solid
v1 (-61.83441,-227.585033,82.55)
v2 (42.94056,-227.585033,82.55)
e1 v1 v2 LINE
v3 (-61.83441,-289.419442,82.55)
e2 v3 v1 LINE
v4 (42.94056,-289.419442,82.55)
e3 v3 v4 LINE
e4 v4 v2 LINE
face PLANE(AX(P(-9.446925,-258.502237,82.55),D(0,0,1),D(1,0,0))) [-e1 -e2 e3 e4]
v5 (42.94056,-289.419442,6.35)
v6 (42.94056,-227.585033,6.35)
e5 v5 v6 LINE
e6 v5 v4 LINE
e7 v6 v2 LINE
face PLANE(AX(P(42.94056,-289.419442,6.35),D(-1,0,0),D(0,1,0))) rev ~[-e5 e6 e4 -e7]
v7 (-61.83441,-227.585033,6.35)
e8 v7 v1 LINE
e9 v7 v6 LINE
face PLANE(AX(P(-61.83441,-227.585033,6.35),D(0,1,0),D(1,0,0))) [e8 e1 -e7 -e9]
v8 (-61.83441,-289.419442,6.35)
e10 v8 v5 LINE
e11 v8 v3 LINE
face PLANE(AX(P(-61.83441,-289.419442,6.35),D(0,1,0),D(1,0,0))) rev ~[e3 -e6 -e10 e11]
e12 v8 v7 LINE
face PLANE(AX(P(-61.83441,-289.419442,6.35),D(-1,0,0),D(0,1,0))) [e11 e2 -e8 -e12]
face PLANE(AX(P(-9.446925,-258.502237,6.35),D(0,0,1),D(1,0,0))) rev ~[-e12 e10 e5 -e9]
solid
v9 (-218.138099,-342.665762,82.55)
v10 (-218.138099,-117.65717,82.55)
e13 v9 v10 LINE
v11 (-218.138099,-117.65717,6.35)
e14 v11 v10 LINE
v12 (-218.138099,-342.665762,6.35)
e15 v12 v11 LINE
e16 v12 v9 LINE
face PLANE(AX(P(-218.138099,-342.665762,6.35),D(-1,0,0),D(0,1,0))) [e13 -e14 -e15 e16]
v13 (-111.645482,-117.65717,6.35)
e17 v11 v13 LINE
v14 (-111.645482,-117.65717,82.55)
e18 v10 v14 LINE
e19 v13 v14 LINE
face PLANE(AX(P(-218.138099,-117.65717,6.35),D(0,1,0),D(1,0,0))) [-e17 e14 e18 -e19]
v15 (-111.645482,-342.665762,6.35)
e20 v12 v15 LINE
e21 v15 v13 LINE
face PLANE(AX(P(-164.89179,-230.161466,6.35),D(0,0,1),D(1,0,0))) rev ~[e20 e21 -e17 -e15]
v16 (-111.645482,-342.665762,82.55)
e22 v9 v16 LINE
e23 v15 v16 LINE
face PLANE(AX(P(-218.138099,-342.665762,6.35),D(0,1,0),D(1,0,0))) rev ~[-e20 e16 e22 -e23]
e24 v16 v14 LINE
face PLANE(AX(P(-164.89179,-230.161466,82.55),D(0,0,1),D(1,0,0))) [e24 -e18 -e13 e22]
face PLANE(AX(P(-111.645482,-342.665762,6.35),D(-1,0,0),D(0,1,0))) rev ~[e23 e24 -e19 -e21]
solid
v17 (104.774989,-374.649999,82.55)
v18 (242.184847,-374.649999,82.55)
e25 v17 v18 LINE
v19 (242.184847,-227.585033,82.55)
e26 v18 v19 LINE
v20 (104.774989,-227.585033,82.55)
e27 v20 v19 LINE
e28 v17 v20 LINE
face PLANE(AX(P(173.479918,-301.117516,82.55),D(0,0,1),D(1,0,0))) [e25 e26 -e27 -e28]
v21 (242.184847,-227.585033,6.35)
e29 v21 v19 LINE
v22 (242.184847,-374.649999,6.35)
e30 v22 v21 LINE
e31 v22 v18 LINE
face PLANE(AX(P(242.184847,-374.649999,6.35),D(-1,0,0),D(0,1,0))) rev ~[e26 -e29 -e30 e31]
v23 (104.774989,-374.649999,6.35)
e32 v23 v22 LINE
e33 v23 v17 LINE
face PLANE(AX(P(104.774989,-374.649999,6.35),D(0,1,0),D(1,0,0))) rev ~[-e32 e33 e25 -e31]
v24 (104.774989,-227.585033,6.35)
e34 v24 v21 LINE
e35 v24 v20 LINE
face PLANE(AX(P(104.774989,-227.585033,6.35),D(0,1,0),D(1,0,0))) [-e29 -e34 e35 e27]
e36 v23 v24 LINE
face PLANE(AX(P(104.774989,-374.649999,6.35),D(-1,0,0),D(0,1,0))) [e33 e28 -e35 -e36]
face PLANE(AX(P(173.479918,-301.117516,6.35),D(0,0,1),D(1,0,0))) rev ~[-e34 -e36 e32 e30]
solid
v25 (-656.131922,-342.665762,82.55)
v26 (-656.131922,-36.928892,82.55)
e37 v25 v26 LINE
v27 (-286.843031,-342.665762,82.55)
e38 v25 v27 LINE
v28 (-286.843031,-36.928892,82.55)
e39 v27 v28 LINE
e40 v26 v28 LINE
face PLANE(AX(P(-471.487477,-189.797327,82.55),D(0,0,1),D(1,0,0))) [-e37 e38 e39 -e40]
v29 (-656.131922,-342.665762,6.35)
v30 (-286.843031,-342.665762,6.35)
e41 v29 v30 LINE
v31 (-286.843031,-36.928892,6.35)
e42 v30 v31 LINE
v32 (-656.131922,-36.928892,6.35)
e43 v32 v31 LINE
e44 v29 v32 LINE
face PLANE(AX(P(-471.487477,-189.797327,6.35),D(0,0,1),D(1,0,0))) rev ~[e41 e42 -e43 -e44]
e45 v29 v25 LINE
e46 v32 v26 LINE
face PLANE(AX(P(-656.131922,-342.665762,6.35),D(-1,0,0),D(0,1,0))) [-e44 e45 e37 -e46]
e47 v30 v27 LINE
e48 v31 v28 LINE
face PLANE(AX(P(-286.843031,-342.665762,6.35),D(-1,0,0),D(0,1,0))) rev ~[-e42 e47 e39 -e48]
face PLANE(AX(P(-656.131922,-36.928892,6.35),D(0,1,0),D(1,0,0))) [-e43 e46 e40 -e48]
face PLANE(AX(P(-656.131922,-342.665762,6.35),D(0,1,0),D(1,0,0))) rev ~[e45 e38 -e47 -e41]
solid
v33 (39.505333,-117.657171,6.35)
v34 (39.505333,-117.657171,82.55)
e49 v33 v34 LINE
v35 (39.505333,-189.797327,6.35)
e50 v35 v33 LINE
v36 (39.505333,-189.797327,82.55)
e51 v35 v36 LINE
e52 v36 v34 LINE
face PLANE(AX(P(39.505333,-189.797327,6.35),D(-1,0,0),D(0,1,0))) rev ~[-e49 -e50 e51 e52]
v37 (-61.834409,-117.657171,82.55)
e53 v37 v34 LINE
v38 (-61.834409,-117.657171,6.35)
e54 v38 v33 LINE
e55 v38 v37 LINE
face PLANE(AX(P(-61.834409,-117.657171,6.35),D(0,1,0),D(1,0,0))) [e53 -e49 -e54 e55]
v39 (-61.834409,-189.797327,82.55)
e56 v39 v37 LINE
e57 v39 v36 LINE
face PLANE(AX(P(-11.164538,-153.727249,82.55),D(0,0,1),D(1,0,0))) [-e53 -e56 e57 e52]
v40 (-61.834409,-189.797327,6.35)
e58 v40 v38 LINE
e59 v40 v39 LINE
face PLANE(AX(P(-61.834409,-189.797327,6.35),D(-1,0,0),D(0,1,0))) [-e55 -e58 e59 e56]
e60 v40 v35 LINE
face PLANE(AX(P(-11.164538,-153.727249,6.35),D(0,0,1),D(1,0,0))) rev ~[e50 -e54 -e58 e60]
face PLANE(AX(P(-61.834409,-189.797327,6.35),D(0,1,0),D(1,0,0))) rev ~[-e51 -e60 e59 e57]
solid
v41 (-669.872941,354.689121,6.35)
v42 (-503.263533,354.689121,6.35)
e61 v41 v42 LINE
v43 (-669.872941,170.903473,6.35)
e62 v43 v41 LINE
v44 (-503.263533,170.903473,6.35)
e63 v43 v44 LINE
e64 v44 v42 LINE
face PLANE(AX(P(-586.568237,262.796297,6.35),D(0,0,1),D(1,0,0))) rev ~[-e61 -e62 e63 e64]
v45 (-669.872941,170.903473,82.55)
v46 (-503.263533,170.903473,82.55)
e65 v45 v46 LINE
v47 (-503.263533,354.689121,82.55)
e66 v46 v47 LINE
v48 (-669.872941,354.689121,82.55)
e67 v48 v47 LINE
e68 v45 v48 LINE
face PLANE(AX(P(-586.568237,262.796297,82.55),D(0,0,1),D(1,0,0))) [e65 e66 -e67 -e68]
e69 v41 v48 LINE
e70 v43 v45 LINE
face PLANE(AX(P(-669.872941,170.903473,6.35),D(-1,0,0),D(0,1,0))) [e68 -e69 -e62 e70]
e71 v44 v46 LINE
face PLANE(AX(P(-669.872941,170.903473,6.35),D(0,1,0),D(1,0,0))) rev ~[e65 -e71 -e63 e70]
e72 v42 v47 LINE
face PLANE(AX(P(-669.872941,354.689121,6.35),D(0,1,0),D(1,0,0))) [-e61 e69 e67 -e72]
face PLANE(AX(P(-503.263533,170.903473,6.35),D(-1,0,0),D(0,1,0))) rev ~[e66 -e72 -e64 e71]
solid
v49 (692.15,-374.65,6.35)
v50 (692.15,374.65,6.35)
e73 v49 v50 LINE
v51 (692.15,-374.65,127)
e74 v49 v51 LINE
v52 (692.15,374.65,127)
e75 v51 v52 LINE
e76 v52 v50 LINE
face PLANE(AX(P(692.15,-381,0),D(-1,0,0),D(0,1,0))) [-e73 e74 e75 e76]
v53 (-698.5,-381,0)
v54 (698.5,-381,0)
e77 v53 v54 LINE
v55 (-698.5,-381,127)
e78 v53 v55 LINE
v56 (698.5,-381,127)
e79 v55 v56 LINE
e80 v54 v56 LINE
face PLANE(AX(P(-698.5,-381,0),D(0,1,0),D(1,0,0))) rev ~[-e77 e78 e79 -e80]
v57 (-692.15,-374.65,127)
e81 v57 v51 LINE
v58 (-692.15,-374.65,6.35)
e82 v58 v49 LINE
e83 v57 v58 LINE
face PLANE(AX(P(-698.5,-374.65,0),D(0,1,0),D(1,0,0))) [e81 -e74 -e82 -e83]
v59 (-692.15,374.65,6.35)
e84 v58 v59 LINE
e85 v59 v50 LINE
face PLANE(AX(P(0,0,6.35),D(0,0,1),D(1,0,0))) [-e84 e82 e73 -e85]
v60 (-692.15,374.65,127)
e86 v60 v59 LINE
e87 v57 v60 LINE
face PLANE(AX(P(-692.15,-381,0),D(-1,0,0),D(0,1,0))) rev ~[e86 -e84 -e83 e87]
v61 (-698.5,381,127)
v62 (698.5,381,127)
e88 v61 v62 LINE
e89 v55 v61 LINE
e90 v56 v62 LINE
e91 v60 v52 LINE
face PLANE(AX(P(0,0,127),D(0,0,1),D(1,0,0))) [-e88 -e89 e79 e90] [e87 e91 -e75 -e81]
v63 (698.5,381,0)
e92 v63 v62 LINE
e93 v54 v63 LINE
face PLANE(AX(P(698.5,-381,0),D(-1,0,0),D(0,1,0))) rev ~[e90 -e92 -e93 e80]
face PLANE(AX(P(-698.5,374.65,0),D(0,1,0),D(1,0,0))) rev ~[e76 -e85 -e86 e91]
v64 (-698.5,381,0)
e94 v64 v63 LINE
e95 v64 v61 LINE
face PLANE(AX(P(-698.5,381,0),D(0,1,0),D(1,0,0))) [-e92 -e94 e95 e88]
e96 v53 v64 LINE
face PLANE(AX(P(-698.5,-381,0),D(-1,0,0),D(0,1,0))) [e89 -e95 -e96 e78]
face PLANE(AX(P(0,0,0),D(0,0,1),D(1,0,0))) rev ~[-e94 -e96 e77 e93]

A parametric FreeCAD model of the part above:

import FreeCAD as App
import Part
import Sketcher
Q = App.Units.Quantity


def faces_at(feature, points):
    """Names of the faces that lie closest to the given points."""
    faces = feature.Shape.Faces
    near = lambda p: min(range(len(faces)), key=lambda i: faces[i].distToShape(Part.Vertex(*p))[0])
    return sorted({f"Face{near(p) + 1}" for p in points})

doc = App.newDocument("Part")
body = doc.addObject("PartDesign::Body", "Body")

# Sketch on XY plane
sketch1 = body.newObject("Sketcher::SketchObject", "Sketch")
sketch1.AttachmentSupport = (doc.getObject("XY_Plane"), [""])
sketch1.MapMode = "FlatFace"
sketch1.addGeometry(Part.LineSegment(App.Vector(-698.5, 381, 0), App.Vector(-698.5, -381, 0)), False)
sketch1.addGeometry(Part.LineSegment(App.Vector(-698.5, -381, 0), App.Vector(698.5, -381, 0)), False)
sketch1.addGeometry(Part.LineSegment(App.Vector(698.5, -381, 0), App.Vector(698.5, 381, 0)), False)
sketch1.addGeometry(Part.LineSegment(App.Vector(698.5, 381, 0), App.Vector(-698.5, 381, 0)), False)
sketch1.addConstraint(Sketcher.Constraint("Coincident", 0, 2, 1, 1))
sketch1.addConstraint(Sketcher.Constraint("Coincident", 1, 2, 2, 1))
sketch1.addConstraint(Sketcher.Constraint("Coincident", 2, 2, 3, 1))
sketch1.addConstraint(Sketcher.Constraint("Coincident", 3, 2, 0, 1))
sketch1.addConstraint(Sketcher.Constraint("Vertical", 0))
sketch1.addConstraint(Sketcher.Constraint("Horizontal", 1))
sketch1.addConstraint(Sketcher.Constraint("Vertical", 2))
sketch1.addConstraint(Sketcher.Constraint("Horizontal", 3))
sketch1.addConstraint(Sketcher.Constraint("Symmetric", 0, 2, 2, 2, -1, 1))
sketch1.addConstraint(Sketcher.Constraint("DistanceX", 1, 1, 1, 2, Q("55 in")))
sketch1.addConstraint(Sketcher.Constraint("DistanceY", 0, 2, 0, 1, Q("30 in")))
pad1 = body.newObject("PartDesign::Pad", "Pad")
pad1.Profile = sketch1
pad1.Length = Q("5 in")
doc.recompute()

thickness = body.newObject("PartDesign::Thickness", "Thickness")
thickness.Base = (pad1, faces_at(pad1, [(0, 0, 127)]))
thickness.Value = Q("0.25 in")
thickness.Reversed = True
thickness.Join = "Arc"
body2 = doc.addObject("PartDesign::Body", "Body001")
body2.AllowCompound = True

# Sketch on XY plane
sketch2 = body2.newObject("Sketcher::SketchObject", "Sketch001")
sketch2.AttachmentSupport = (doc.getObject("XY_Plane001"), [""])
sketch2.MapMode = "FlatFace"
sketch2.AttachmentOffset = App.Placement(App.Vector(0, 0, 0.25 * 25.4), App.Rotation())
sketch2.addGeometry(Part.LineSegment(App.Vector(-656.131922, -36.928892, 0), App.Vector(-656.131922, -342.665762, 0)), False)
sketch2.addGeometry(Part.LineSegment(App.Vector(-656.131922, -342.665762, 0), App.Vector(-286.843031, -342.665762, 0)), False)
sketch2.addGeometry(Part.LineSegment(App.Vector(-286.843031, -342.665762, 0), App.Vector(-286.843031, -36.928892, 0)), False)
sketch2.addGeometry(Part.LineSegment(App.Vector(-286.843031, -36.928892, 0), App.Vector(-656.131922, -36.928892, 0)), False)
sketch2.addGeometry(Part.LineSegment(App.Vector(-218.138099, -117.65717, 0), App.Vector(-218.138099, -342.665762, 0)), False)
sketch2.addGeometry(Part.LineSegment(App.Vector(-218.138099, -342.665762, 0), App.Vector(-111.645482, -342.665762, 0)), False)
sketch2.addGeometry(Part.LineSegment(App.Vector(-111.645482, -342.665762, 0), App.Vector(-111.645482, -117.65717, 0)), False)
sketch2.addGeometry(Part.LineSegment(App.Vector(-111.645482, -117.65717, 0), App.Vector(-218.138099, -117.65717, 0)), False)
sketch2.addGeometry(Part.LineSegment(App.Vector(-61.834409, -117.657171, 0), App.Vector(-61.834409, -189.797327, 0)), False)
sketch2.addGeometry(Part.LineSegment(App.Vector(-61.834409, -189.797327, 0), App.Vector(39.505333, -189.797327, 0)), False)
sketch2.addGeometry(Part.LineSegment(App.Vector(39.505333, -189.797327, 0), App.Vector(39.505333, -117.657171, 0)), False)
sketch2.addGeometry(Part.LineSegment(App.Vector(39.505333, -117.657171, 0), App.Vector(-61.834409, -117.657171, 0)), False)
sketch2.addGeometry(Part.LineSegment(App.Vector(-61.83441, -227.585033, 0), App.Vector(-61.83441, -289.419442, 0)), False)
sketch2.addGeometry(Part.LineSegment(App.Vector(-61.83441, -289.419442, 0), App.Vector(42.94056, -289.419442, 0)), False)
sketch2.addGeometry(Part.LineSegment(App.Vector(42.94056, -289.419442, 0), App.Vector(42.94056, -227.585033, 0)), False)
sketch2.addGeometry(Part.LineSegment(App.Vector(42.94056, -227.585033, 0), App.Vector(-61.83441, -227.585033, 0)), False)
sketch2.addGeometry(Part.LineSegment(App.Vector(-669.872941, 354.689121, 0), App.Vector(-669.872941, 170.903473, 0)), False)
sketch2.addGeometry(Part.LineSegment(App.Vector(-669.872941, 170.903473, 0), App.Vector(-503.263533, 170.903473, 0)), False)
sketch2.addGeometry(Part.LineSegment(App.Vector(-503.263533, 170.903473, 0), App.Vector(-503.263533, 354.689121, 0)), False)
sketch2.addGeometry(Part.LineSegment(App.Vector(-503.263533, 354.689121, 0), App.Vector(-669.872941, 354.689121, 0)), False)
sketch2.addGeometry(Part.LineSegment(App.Vector(104.774989, -227.585033, 0), App.Vector(104.774989, -374.649999, 0)), False)
sketch2.addGeometry(Part.LineSegment(App.Vector(104.774989, -374.649999, 0), App.Vector(242.184847, -374.649999, 0)), False)
sketch2.addGeometry(Part.LineSegment(App.Vector(242.184847, -374.649999, 0), App.Vector(242.184847, -227.585033, 0)), False)
sketch2.addGeometry(Part.LineSegment(App.Vector(242.184847, -227.585033, 0), App.Vector(104.774989, -227.585033, 0)), False)
sketch2.addConstraint(Sketcher.Constraint("Coincident", 0, 2, 1, 1))
sketch2.addConstraint(Sketcher.Constraint("Coincident", 1, 2, 2, 1))
sketch2.addConstraint(Sketcher.Constraint("Coincident", 2, 2, 3, 1))
sketch2.addConstraint(Sketcher.Constraint("Coincident", 3, 2, 0, 1))
sketch2.addConstraint(Sketcher.Constraint("Coincident", 4, 2, 5, 1))
sketch2.addConstraint(Sketcher.Constraint("Coincident", 5, 2, 6, 1))
sketch2.addConstraint(Sketcher.Constraint("Coincident", 6, 2, 7, 1))
sketch2.addConstraint(Sketcher.Constraint("Coincident", 7, 2, 4, 1))
sketch2.addConstraint(Sketcher.Constraint("Coincident", 8, 2, 9, 1))
sketch2.addConstraint(Sketcher.Constraint("Coincident", 9, 2, 10, 1))
sketch2.addConstraint(Sketcher.Constraint("Coincident", 10, 2, 11, 1))
sketch2.addConstraint(Sketcher.Constraint("Coincident", 11, 2, 8, 1))
sketch2.addConstraint(Sketcher.Constraint("Coincident", 12, 2, 13, 1))
sketch2.addConstraint(Sketcher.Constraint("Coincident", 13, 2, 14, 1))
sketch2.addConstraint(Sketcher.Constraint("Coincident", 14, 2, 15, 1))
sketch2.addConstraint(Sketcher.Constraint("Coincident", 15, 2, 12, 1))
sketch2.addConstraint(Sketcher.Constraint("Coincident", 16, 2, 17, 1))
sketch2.addConstraint(Sketcher.Constraint("Coincident", 17, 2, 18, 1))
sketch2.addConstraint(Sketcher.Constraint("Coincident", 18, 2, 19, 1))
sketch2.addConstraint(Sketcher.Constraint("Coincident", 19, 2, 16, 1))
sketch2.addConstraint(Sketcher.Constraint("Coincident", 20, 2, 21, 1))
sketch2.addConstraint(Sketcher.Constraint("Coincident", 21, 2, 22, 1))
sketch2.addConstraint(Sketcher.Constraint("Coincident", 22, 2, 23, 1))
sketch2.addConstraint(Sketcher.Constraint("Coincident", 23, 2, 20, 1))
sketch2.addConstraint(Sketcher.Constraint("Vertical", 0))
sketch2.addConstraint(Sketcher.Constraint("Horizontal", 1))
sketch2.addConstraint(Sketcher.Constraint("Vertical", 2))
sketch2.addConstraint(Sketcher.Constraint("Horizontal", 3))
sketch2.addConstraint(Sketcher.Constraint("Vertical", 4))
sketch2.addConstraint(Sketcher.Constraint("Horizontal", 5))
sketch2.addConstraint(Sketcher.Constraint("Vertical", 6))
sketch2.addConstraint(Sketcher.Constraint("Horizontal", 7))
sketch2.addConstraint(Sketcher.Constraint("Vertical", 8))
sketch2.addConstraint(Sketcher.Constraint("Horizontal", 9))
sketch2.addConstraint(Sketcher.Constraint("Vertical", 10))
sketch2.addConstraint(Sketcher.Constraint("Horizontal", 11))
sketch2.addConstraint(Sketcher.Constraint("Vertical", 12))
sketch2.addConstraint(Sketcher.Constraint("Horizontal", 13))
sketch2.addConstraint(Sketcher.Constraint("Vertical", 14))
sketch2.addConstraint(Sketcher.Constraint("Horizontal", 15))
sketch2.addConstraint(Sketcher.Constraint("Vertical", 16))
sketch2.addConstraint(Sketcher.Constraint("Horizontal", 17))
sketch2.addConstraint(Sketcher.Constraint("Vertical", 18))
sketch2.addConstraint(Sketcher.Constraint("Horizontal", 19))
sketch2.addConstraint(Sketcher.Constraint("Vertical", 20))
sketch2.addConstraint(Sketcher.Constraint("Horizontal", 21))
sketch2.addConstraint(Sketcher.Constraint("Vertical", 22))
sketch2.addConstraint(Sketcher.Constraint("Horizontal", 23))
sketch2.addConstraint(Sketcher.Constraint("Horizontal", 1, 2, 4, 2))
sketch2.addConstraint(Sketcher.Constraint("Horizontal", 7, 2, 10, 2))
sketch2.addConstraint(Sketcher.Constraint("Horizontal", 15, 2, 22, 2))
sketch2.addConstraint(Sketcher.Constraint("Vertical", 11, 2, 12, 2))
sketch2.addConstraint(Sketcher.Constraint("DistanceY", 20, 2, -1, 1, Q("14.75 in")))
sketch2.addConstraint(Sketcher.Constraint("DistanceX", 1, 1, 1, 2, 369.288891))
sketch2.addConstraint(Sketcher.Constraint("DistanceX", 13, 1, 13, 2, 104.774971))
sketch2.addConstraint(Sketcher.Constraint("DistanceX", 21, 1, 21, 2, 137.409859))
sketch2.addConstraint(Sketcher.Constraint("DistanceY", 0, 2, 0, 1, 305.73687))
sketch2.addConstraint(Sketcher.Constraint("DistanceY", 4, 2, 4, 1, 225.008592))
sketch2.addConstraint(Sketcher.Constraint("DistanceY", 12, 2, 12, 1, 61.834409))
sketch2.addConstraint(Sketcher.Constraint("DistanceX", 4, 2, -1, 1, 218.138099))
sketch2.addConstraint(Sketcher.Constraint("DistanceX", 17, 2, 2, 2, 216.420502))
sketch2.addConstraint(Sketcher.Constraint("DistanceX", 12, 2, 20, 2, 166.609399))
sketch2.addConstraint(Sketcher.Constraint("DistanceX", 5, 1, 5, 2, 106.492617))
sketch2.addConstraint(Sketcher.Constraint("DistanceX", 9, 1, 9, 2, 101.339743))
sketch2.addConstraint(Sketcher.Constraint("DistanceX", 17, 1, 17, 2, 166.609407))
sketch2.addConstraint(Sketcher.Constraint("DistanceY", 8, 2, 8, 1, 72.140157))
sketch2.addConstraint(Sketcher.Constraint("DistanceY", 16, 2, 16, 1, 183.785647))
sketch2.addConstraint(Sketcher.Constraint("DistanceY", 20, 2, 20, 1, 147.064967))
sketch2.addConstraint(Sketcher.Constraint("DistanceY", 0, 2, -1, 1, 342.665762))
sketch2.addConstraint(Sketcher.Constraint("DistanceX", 1, 2, -1, 1, 286.843031))
sketch2.addConstraint(Sketcher.Constraint("DistanceX", 8, 2, -1, 1, 61.834409))
sketch2.addConstraint(Sketcher.Constraint("DistanceY", -1, 1, 18, 2, 354.689121))
pad2 = body2.newObject("PartDesign::Pad", "Pad001")
pad2.Profile = sketch2
pad2.Length = Q("3 in")

doc.recompute()
